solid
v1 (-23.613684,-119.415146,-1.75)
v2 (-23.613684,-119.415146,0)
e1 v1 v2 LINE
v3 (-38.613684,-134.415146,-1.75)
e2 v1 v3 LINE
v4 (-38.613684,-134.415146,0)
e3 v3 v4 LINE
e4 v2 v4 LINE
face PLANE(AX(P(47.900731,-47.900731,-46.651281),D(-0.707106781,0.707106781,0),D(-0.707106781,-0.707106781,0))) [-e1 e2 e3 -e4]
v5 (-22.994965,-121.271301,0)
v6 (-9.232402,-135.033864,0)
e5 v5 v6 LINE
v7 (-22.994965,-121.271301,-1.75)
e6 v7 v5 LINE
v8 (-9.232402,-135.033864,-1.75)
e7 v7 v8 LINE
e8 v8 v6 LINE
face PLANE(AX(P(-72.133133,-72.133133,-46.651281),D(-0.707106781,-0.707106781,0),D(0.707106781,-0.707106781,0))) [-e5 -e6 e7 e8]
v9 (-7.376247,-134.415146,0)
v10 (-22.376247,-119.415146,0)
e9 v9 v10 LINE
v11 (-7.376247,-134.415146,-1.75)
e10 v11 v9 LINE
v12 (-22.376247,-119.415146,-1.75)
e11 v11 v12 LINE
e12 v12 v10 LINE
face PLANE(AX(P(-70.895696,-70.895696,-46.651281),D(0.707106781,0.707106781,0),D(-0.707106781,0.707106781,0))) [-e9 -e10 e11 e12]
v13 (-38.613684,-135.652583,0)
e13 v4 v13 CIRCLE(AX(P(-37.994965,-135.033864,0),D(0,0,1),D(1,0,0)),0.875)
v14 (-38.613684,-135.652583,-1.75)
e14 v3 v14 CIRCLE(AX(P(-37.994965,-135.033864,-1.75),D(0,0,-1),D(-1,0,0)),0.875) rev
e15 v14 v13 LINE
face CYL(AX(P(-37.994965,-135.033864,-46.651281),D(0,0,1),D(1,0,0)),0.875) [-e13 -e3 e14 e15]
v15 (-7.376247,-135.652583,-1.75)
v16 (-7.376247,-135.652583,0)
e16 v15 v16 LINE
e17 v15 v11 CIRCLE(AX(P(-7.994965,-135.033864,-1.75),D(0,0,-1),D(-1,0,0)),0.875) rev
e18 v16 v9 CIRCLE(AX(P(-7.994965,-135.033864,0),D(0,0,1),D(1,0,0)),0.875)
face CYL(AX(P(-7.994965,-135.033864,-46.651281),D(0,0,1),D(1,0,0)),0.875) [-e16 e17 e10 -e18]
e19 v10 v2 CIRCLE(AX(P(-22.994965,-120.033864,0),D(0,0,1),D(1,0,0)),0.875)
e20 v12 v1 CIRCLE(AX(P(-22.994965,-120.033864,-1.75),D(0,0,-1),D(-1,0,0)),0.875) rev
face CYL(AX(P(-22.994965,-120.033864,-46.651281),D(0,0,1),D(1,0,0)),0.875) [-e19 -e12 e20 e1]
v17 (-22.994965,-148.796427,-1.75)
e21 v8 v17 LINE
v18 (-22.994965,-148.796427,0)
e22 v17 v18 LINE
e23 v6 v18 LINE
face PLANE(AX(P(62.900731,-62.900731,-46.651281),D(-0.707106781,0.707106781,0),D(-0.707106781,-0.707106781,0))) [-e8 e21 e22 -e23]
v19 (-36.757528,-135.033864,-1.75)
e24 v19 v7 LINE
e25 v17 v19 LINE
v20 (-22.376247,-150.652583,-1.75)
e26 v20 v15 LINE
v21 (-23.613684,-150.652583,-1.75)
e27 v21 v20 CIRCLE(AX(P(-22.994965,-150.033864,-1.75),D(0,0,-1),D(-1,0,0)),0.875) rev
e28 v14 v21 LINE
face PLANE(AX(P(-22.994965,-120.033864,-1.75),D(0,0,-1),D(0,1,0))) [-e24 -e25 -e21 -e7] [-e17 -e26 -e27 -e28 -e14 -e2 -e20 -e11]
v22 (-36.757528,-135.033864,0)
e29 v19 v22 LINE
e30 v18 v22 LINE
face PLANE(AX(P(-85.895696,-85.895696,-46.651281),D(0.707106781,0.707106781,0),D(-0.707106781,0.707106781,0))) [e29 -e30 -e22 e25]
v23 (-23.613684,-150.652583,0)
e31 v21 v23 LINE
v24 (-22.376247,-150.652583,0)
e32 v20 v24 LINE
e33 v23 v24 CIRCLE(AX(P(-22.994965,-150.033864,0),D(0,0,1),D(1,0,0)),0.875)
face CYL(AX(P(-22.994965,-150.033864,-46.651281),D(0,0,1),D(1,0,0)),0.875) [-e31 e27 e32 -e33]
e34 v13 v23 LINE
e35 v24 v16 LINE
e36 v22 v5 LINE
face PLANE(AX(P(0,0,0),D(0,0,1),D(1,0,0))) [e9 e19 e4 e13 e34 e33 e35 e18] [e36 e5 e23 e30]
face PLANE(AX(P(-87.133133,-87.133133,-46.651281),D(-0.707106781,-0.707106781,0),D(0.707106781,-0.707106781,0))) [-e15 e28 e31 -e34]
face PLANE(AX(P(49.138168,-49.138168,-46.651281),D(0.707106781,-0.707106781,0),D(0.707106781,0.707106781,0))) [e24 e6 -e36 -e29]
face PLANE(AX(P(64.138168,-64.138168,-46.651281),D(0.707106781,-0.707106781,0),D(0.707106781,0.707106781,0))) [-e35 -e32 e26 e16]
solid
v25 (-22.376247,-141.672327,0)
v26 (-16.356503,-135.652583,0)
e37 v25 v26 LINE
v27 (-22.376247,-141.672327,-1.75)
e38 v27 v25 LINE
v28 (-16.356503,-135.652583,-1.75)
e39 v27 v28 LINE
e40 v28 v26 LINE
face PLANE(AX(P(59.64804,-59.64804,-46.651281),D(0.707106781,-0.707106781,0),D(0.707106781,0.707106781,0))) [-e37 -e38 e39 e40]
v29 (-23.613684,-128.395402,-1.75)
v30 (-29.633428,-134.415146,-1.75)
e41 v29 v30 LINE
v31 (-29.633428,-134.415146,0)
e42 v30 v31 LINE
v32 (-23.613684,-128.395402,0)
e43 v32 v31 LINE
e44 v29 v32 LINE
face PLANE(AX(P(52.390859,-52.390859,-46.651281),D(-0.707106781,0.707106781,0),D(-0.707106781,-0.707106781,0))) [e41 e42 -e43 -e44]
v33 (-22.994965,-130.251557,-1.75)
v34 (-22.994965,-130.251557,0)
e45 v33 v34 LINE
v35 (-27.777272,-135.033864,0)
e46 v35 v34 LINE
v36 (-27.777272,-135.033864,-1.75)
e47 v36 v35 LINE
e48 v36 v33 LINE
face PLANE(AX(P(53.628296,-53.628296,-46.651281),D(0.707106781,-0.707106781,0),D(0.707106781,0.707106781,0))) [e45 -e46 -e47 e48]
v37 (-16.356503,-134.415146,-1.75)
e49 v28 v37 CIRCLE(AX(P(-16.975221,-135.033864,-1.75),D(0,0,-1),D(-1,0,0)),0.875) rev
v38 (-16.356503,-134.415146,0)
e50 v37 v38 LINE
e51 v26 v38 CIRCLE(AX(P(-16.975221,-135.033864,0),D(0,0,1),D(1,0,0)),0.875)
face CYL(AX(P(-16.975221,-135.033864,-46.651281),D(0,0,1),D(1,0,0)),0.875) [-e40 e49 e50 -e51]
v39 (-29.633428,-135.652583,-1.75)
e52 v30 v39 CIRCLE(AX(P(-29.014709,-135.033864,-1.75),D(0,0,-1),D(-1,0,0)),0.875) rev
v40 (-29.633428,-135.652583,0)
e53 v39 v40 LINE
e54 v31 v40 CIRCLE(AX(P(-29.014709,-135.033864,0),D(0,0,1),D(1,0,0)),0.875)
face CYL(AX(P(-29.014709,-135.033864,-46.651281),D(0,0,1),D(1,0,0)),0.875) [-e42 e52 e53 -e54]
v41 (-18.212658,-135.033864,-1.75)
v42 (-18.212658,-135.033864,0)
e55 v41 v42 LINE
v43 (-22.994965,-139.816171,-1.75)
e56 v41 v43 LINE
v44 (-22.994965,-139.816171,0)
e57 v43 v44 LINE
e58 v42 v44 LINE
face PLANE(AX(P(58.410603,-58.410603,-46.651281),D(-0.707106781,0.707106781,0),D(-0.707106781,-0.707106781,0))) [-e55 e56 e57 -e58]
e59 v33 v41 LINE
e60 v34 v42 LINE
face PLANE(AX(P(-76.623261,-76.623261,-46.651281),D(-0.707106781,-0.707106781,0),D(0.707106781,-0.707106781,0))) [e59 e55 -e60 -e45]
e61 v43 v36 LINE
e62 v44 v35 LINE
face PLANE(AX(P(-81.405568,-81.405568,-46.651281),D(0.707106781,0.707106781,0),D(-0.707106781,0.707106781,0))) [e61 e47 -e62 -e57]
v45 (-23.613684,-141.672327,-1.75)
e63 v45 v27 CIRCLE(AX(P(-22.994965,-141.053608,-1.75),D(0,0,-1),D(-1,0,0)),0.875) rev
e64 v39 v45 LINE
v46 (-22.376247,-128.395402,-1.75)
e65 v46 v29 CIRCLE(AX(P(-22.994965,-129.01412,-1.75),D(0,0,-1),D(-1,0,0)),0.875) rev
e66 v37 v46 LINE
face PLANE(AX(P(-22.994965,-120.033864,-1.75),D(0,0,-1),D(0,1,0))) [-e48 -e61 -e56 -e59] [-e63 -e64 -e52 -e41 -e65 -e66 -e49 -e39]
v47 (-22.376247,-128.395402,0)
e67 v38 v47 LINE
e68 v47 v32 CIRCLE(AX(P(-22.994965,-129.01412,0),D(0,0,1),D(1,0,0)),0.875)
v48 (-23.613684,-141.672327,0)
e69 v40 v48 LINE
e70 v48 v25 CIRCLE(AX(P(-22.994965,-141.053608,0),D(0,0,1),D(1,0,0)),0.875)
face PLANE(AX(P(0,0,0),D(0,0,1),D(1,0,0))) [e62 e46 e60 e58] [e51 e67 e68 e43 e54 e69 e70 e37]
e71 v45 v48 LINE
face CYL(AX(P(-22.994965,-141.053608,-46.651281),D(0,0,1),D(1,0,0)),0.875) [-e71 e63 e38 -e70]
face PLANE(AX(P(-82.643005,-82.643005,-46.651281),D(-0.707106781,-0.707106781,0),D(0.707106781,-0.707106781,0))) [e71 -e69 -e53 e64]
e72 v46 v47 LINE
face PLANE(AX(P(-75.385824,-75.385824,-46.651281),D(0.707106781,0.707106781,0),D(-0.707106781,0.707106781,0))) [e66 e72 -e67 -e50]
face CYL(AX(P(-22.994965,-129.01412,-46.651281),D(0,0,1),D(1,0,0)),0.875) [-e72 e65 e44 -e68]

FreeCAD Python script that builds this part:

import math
import FreeCAD as App
import Part
import Sketcher

V = App.Vector
Q = App.Units.Quantity

doc = App.newDocument("Part")
params = doc.addObject("Spreadsheet::Sheet", "Params")
for row, (alias, value) in enumerate([
    ("pad1_length", "1.75 mm"),
    ("pad2_length", "1.75 mm"),
], start=1):
    params.set(f"A{row}", alias)
    params.set(f"B{row}", "=" + value)
    params.setAlias(f"B{row}", alias)

body = doc.addObject("PartDesign::Body", "Body")

sketch1 = body.newObject("Sketcher::SketchObject", "Sketch")
sketch1.AttachmentSupport = (doc.getObject("XY_Plane"), [""])
sketch1.MapMode = "FlatFace"
sketch1.addGeometry(Part.LineSegment(V(-22.4, -150.7, 0), V(-7.4, -135.7, 0)), False)
sketch1.addGeometry(Part.ArcOfCircle(Part.Circle(V(-8, -135, 0), V(0, 0, 1), 0.9), math.radians(-45), math.radians(45)), False)
sketch1.addGeometry(Part.LineSegment(V(-7.4, -134.4, 0), V(-22.4, -119.4, 0)), False)
sketch1.addGeometry(Part.ArcOfCircle(Part.Circle(V(-23, -120, 0), V(0, 0, 1), 0.9), math.radians(45), math.radians(135)), False)
sketch1.addGeometry(Part.LineSegment(V(-23.6, -119.4, 0), V(-38.6, -134.4, 0)), False)
sketch1.addGeometry(Part.ArcOfCircle(Part.Circle(V(-38, -135, 0), V(0, 0, 1), 0.9), math.radians(135), math.radians(225)), False)
sketch1.addGeometry(Part.LineSegment(V(-38.6, -135.7, 0), V(-23.6, -150.7, 0)), False)
sketch1.addGeometry(Part.ArcOfCircle(Part.Circle(V(-23, -150, 0), V(0, 0, 1), 0.9), math.radians(-135), math.radians(-45)), False)
sketch1.addGeometry(Part.LineSegment(V(-36.8, -135, 0), V(-23, -121.3, 0)), False)
sketch1.addGeometry(Part.LineSegment(V(-23, -121.3, 0), V(-9.2, -135, 0)), False)
sketch1.addGeometry(Part.LineSegment(V(-9.2, -135, 0), V(-23, -148.8, 0)), False)
sketch1.addGeometry(Part.LineSegment(V(-23, -148.8, 0), V(-36.8, -135, 0)), False)
sketch1.addConstraint(Sketcher.Constraint("Tangent", 0, 2, 1, 1))
sketch1.addConstraint(Sketcher.Constraint("Tangent", 1, 2, 2, 1))
sketch1.addConstraint(Sketcher.Constraint("Tangent", 2, 2, 3, 1))
sketch1.addConstraint(Sketcher.Constraint("Tangent", 3, 2, 4, 1))
sketch1.addConstraint(Sketcher.Constraint("Tangent", 4, 2, 5, 1))
sketch1.addConstraint(Sketcher.Constraint("Tangent", 5, 2, 6, 1))
sketch1.addConstraint(Sketcher.Constraint("Tangent", 6, 2, 7, 1))
sketch1.addConstraint(Sketcher.Constraint("Tangent", 7, 2, 0, 1))
sketch1.addConstraint(Sketcher.Constraint("Coincident", 8, 2, 9, 1))
sketch1.addConstraint(Sketcher.Constraint("Coincident", 9, 2, 10, 1))
sketch1.addConstraint(Sketcher.Constraint("Coincident", 10, 2, 11, 1))
sketch1.addConstraint(Sketcher.Constraint("Coincident", 11, 2, 8, 1))
sketch1.addConstraint(Sketcher.Constraint("Equal", 1, 3))
sketch1.addConstraint(Sketcher.Constraint("Equal", 3, 5))
sketch1.addConstraint(Sketcher.Constraint("Equal", 5, 7))
sketch1.addConstraint(Sketcher.Constraint("Perpendicular", 0, 2))
sketch1.addConstraint(Sketcher.Constraint("Perpendicular", 2, 4))
sketch1.addConstraint(Sketcher.Constraint("Perpendicular", 4, 6))
sketch1.addConstraint(Sketcher.Constraint("Perpendicular", 6, 8))
sketch1.addConstraint(Sketcher.Constraint("Perpendicular", 8, 9))
sketch1.addConstraint(Sketcher.Constraint("Perpendicular", 9, 10))
sketch1.addConstraint(Sketcher.Constraint("Perpendicular", 10, 11))
sketch1.addConstraint(Sketcher.Constraint("Horizontal", 1, 3, 5, 3))
sketch1.addConstraint(Sketcher.Constraint("Horizontal", 2, 2, 3, 2))
sketch1.addConstraint(Sketcher.Constraint("Horizontal", 5, 3, 9, 2))
sketch1.addConstraint(Sketcher.Constraint("Horizontal", 9, 2, 11, 2))
sketch1.addConstraint(Sketcher.Constraint("Vertical", 7, 3, 8, 2))
sketch1.addConstraint(Sketcher.Constraint("Radius", 1, Q("0.875 mm")))
sketch1.addConstraint(Sketcher.Constraint("DistanceX", 3, 3, 1, 3, Q("15 mm")))
sketch1.addConstraint(Sketcher.Constraint("DistanceY", 8, 2, -1, 1, Q("121.271301 mm")))
sketch1.addConstraint(Sketcher.Constraint("DistanceX", 11, 2, -1, 1, Q("36.757528 mm")))
sketch1.addConstraint(Sketcher.Constraint("Distance", 8, Q("19.463203 mm")))
pad1 = body.newObject("PartDesign::Pad", "Pad")
pad1.Profile = sketch1
pad1.setExpression("Length", "Params.pad1_length")
pad1.Reversed = True
body2 = doc.addObject("PartDesign::Body", "Body001")

sketch2 = body2.newObject("Sketcher::SketchObject", "Sketch001")
sketch2.AttachmentSupport = (doc.getObject("XY_Plane001"), [""])
sketch2.MapMode = "FlatFace"
sketch2.addGeometry(Part.LineSegment(V(-22.4, -141.7, 0), V(-16.4, -135.7, 0)), False)
sketch2.addGeometry(Part.ArcOfCircle(Part.Circle(V(-17, -135, 0), V(0, 0, 1), 0.9), math.radians(-45), math.radians(45)), False)
sketch2.addGeometry(Part.LineSegment(V(-16.4, -134.4, 0), V(-22.4, -128.4, 0)), False)
sketch2.addGeometry(Part.ArcOfCircle(Part.Circle(V(-23, -129, 0), V(0, 0, 1), 0.9), math.radians(45), math.radians(135)), False)
sketch2.addGeometry(Part.LineSegment(V(-23.6, -128.4, 0), V(-29.6, -134.4, 0)), False)
sketch2.addGeometry(Part.ArcOfCircle(Part.Circle(V(-29, -135, 0), V(0, 0, 1), 0.9), math.radians(135), math.radians(225)), False)
sketch2.addGeometry(Part.LineSegment(V(-29.6, -135.7, 0), V(-23.6, -141.7, 0)), False)
sketch2.addGeometry(Part.ArcOfCircle(Part.Circle(V(-23, -141.1, 0), V(0, 0, 1), 0.9), math.radians(-135), math.radians(-45)), False)
sketch2.addGeometry(Part.LineSegment(V(-27.8, -135, 0), V(-23, -130.3, 0)), False)
sketch2.addGeometry(Part.LineSegment(V(-23, -130.3, 0), V(-18.2, -135, 0)), False)
sketch2.addGeometry(Part.LineSegment(V(-18.2, -135, 0), V(-23, -139.8, 0)), False)
sketch2.addGeometry(Part.LineSegment(V(-23, -139.8, 0), V(-27.8, -135, 0)), False)
sketch2.addConstraint(Sketcher.Constraint("Tangent", 0, 2, 1, 1))
sketch2.addConstraint(Sketcher.Constraint("Tangent", 1, 2, 2, 1))
sketch2.addConstraint(Sketcher.Constraint("Tangent", 2, 2, 3, 1))
sketch2.addConstraint(Sketcher.Constraint("Tangent", 3, 2, 4, 1))
sketch2.addConstraint(Sketcher.Constraint("Tangent", 4, 2, 5, 1))
sketch2.addConstraint(Sketcher.Constraint("Tangent", 5, 2, 6, 1))
sketch2.addConstraint(Sketcher.Constraint("Tangent", 6, 2, 7, 1))
sketch2.addConstraint(Sketcher.Constraint("Tangent", 7, 2, 0, 1))
sketch2.addConstraint(Sketcher.Constraint("Coincident", 8, 2, 9, 1))
sketch2.addConstraint(Sketcher.Constraint("Coincident", 9, 2, 10, 1))
sketch2.addConstraint(Sketcher.Constraint("Coincident", 10, 2, 11, 1))
sketch2.addConstraint(Sketcher.Constraint("Coincident", 11, 2, 8, 1))
sketch2.addConstraint(Sketcher.Constraint("Equal", 1, 3))
sketch2.addConstraint(Sketcher.Constraint("Equal", 3, 5))
sketch2.addConstraint(Sketcher.Constraint("Equal", 5, 7))
sketch2.addConstraint(Sketcher.Constraint("Perpendicular", 0, 2))
sketch2.addConstraint(Sketcher.Constraint("Perpendicular", 2, 4))
sketch2.addConstraint(Sketcher.Constraint("Perpendicular", 4, 6))
sketch2.addConstraint(Sketcher.Constraint("Perpendicular", 6, 8))
sketch2.addConstraint(Sketcher.Constraint("Perpendicular", 8, 9))
sketch2.addConstraint(Sketcher.Constraint("Perpendicular", 9, 10))
sketch2.addConstraint(Sketcher.Constraint("Perpendicular", 10, 11))
sketch2.addConstraint(Sketcher.Constraint("Horizontal", 1, 3, 5, 3))
sketch2.addConstraint(Sketcher.Constraint("Horizontal", 2, 2, 3, 2))
sketch2.addConstraint(Sketcher.Constraint("Horizontal", 5, 3, 9, 2))
sketch2.addConstraint(Sketcher.Constraint("Horizontal", 9, 2, 11, 2))
sketch2.addConstraint(Sketcher.Constraint("Vertical", 7, 3, 8, 2))
sketch2.addConstraint(Sketcher.Constraint("Radius", 1, Q("0.875 mm")))
sketch2.addConstraint(Sketcher.Constraint("DistanceX", 1, 3, -1, 1, Q("16.975221 mm")))
sketch2.addConstraint(Sketcher.Constraint("DistanceY", 3, 3, -1, 1, Q("129.01412 mm")))
sketch2.addConstraint(Sketcher.Constraint("DistanceX", 5, 3, -1, 1, Q("29.014709 mm")))
sketch2.addConstraint(Sketcher.Constraint("DistanceX", 9, 2, -1, 1, Q("18.212658 mm")))
pad2 = body2.newObject("PartDesign::Pad", "Pad001")
pad2.Profile = sketch2
pad2.setExpression("Length", "Params.pad2_length")
pad2.Reversed = True

doc.recompute()
